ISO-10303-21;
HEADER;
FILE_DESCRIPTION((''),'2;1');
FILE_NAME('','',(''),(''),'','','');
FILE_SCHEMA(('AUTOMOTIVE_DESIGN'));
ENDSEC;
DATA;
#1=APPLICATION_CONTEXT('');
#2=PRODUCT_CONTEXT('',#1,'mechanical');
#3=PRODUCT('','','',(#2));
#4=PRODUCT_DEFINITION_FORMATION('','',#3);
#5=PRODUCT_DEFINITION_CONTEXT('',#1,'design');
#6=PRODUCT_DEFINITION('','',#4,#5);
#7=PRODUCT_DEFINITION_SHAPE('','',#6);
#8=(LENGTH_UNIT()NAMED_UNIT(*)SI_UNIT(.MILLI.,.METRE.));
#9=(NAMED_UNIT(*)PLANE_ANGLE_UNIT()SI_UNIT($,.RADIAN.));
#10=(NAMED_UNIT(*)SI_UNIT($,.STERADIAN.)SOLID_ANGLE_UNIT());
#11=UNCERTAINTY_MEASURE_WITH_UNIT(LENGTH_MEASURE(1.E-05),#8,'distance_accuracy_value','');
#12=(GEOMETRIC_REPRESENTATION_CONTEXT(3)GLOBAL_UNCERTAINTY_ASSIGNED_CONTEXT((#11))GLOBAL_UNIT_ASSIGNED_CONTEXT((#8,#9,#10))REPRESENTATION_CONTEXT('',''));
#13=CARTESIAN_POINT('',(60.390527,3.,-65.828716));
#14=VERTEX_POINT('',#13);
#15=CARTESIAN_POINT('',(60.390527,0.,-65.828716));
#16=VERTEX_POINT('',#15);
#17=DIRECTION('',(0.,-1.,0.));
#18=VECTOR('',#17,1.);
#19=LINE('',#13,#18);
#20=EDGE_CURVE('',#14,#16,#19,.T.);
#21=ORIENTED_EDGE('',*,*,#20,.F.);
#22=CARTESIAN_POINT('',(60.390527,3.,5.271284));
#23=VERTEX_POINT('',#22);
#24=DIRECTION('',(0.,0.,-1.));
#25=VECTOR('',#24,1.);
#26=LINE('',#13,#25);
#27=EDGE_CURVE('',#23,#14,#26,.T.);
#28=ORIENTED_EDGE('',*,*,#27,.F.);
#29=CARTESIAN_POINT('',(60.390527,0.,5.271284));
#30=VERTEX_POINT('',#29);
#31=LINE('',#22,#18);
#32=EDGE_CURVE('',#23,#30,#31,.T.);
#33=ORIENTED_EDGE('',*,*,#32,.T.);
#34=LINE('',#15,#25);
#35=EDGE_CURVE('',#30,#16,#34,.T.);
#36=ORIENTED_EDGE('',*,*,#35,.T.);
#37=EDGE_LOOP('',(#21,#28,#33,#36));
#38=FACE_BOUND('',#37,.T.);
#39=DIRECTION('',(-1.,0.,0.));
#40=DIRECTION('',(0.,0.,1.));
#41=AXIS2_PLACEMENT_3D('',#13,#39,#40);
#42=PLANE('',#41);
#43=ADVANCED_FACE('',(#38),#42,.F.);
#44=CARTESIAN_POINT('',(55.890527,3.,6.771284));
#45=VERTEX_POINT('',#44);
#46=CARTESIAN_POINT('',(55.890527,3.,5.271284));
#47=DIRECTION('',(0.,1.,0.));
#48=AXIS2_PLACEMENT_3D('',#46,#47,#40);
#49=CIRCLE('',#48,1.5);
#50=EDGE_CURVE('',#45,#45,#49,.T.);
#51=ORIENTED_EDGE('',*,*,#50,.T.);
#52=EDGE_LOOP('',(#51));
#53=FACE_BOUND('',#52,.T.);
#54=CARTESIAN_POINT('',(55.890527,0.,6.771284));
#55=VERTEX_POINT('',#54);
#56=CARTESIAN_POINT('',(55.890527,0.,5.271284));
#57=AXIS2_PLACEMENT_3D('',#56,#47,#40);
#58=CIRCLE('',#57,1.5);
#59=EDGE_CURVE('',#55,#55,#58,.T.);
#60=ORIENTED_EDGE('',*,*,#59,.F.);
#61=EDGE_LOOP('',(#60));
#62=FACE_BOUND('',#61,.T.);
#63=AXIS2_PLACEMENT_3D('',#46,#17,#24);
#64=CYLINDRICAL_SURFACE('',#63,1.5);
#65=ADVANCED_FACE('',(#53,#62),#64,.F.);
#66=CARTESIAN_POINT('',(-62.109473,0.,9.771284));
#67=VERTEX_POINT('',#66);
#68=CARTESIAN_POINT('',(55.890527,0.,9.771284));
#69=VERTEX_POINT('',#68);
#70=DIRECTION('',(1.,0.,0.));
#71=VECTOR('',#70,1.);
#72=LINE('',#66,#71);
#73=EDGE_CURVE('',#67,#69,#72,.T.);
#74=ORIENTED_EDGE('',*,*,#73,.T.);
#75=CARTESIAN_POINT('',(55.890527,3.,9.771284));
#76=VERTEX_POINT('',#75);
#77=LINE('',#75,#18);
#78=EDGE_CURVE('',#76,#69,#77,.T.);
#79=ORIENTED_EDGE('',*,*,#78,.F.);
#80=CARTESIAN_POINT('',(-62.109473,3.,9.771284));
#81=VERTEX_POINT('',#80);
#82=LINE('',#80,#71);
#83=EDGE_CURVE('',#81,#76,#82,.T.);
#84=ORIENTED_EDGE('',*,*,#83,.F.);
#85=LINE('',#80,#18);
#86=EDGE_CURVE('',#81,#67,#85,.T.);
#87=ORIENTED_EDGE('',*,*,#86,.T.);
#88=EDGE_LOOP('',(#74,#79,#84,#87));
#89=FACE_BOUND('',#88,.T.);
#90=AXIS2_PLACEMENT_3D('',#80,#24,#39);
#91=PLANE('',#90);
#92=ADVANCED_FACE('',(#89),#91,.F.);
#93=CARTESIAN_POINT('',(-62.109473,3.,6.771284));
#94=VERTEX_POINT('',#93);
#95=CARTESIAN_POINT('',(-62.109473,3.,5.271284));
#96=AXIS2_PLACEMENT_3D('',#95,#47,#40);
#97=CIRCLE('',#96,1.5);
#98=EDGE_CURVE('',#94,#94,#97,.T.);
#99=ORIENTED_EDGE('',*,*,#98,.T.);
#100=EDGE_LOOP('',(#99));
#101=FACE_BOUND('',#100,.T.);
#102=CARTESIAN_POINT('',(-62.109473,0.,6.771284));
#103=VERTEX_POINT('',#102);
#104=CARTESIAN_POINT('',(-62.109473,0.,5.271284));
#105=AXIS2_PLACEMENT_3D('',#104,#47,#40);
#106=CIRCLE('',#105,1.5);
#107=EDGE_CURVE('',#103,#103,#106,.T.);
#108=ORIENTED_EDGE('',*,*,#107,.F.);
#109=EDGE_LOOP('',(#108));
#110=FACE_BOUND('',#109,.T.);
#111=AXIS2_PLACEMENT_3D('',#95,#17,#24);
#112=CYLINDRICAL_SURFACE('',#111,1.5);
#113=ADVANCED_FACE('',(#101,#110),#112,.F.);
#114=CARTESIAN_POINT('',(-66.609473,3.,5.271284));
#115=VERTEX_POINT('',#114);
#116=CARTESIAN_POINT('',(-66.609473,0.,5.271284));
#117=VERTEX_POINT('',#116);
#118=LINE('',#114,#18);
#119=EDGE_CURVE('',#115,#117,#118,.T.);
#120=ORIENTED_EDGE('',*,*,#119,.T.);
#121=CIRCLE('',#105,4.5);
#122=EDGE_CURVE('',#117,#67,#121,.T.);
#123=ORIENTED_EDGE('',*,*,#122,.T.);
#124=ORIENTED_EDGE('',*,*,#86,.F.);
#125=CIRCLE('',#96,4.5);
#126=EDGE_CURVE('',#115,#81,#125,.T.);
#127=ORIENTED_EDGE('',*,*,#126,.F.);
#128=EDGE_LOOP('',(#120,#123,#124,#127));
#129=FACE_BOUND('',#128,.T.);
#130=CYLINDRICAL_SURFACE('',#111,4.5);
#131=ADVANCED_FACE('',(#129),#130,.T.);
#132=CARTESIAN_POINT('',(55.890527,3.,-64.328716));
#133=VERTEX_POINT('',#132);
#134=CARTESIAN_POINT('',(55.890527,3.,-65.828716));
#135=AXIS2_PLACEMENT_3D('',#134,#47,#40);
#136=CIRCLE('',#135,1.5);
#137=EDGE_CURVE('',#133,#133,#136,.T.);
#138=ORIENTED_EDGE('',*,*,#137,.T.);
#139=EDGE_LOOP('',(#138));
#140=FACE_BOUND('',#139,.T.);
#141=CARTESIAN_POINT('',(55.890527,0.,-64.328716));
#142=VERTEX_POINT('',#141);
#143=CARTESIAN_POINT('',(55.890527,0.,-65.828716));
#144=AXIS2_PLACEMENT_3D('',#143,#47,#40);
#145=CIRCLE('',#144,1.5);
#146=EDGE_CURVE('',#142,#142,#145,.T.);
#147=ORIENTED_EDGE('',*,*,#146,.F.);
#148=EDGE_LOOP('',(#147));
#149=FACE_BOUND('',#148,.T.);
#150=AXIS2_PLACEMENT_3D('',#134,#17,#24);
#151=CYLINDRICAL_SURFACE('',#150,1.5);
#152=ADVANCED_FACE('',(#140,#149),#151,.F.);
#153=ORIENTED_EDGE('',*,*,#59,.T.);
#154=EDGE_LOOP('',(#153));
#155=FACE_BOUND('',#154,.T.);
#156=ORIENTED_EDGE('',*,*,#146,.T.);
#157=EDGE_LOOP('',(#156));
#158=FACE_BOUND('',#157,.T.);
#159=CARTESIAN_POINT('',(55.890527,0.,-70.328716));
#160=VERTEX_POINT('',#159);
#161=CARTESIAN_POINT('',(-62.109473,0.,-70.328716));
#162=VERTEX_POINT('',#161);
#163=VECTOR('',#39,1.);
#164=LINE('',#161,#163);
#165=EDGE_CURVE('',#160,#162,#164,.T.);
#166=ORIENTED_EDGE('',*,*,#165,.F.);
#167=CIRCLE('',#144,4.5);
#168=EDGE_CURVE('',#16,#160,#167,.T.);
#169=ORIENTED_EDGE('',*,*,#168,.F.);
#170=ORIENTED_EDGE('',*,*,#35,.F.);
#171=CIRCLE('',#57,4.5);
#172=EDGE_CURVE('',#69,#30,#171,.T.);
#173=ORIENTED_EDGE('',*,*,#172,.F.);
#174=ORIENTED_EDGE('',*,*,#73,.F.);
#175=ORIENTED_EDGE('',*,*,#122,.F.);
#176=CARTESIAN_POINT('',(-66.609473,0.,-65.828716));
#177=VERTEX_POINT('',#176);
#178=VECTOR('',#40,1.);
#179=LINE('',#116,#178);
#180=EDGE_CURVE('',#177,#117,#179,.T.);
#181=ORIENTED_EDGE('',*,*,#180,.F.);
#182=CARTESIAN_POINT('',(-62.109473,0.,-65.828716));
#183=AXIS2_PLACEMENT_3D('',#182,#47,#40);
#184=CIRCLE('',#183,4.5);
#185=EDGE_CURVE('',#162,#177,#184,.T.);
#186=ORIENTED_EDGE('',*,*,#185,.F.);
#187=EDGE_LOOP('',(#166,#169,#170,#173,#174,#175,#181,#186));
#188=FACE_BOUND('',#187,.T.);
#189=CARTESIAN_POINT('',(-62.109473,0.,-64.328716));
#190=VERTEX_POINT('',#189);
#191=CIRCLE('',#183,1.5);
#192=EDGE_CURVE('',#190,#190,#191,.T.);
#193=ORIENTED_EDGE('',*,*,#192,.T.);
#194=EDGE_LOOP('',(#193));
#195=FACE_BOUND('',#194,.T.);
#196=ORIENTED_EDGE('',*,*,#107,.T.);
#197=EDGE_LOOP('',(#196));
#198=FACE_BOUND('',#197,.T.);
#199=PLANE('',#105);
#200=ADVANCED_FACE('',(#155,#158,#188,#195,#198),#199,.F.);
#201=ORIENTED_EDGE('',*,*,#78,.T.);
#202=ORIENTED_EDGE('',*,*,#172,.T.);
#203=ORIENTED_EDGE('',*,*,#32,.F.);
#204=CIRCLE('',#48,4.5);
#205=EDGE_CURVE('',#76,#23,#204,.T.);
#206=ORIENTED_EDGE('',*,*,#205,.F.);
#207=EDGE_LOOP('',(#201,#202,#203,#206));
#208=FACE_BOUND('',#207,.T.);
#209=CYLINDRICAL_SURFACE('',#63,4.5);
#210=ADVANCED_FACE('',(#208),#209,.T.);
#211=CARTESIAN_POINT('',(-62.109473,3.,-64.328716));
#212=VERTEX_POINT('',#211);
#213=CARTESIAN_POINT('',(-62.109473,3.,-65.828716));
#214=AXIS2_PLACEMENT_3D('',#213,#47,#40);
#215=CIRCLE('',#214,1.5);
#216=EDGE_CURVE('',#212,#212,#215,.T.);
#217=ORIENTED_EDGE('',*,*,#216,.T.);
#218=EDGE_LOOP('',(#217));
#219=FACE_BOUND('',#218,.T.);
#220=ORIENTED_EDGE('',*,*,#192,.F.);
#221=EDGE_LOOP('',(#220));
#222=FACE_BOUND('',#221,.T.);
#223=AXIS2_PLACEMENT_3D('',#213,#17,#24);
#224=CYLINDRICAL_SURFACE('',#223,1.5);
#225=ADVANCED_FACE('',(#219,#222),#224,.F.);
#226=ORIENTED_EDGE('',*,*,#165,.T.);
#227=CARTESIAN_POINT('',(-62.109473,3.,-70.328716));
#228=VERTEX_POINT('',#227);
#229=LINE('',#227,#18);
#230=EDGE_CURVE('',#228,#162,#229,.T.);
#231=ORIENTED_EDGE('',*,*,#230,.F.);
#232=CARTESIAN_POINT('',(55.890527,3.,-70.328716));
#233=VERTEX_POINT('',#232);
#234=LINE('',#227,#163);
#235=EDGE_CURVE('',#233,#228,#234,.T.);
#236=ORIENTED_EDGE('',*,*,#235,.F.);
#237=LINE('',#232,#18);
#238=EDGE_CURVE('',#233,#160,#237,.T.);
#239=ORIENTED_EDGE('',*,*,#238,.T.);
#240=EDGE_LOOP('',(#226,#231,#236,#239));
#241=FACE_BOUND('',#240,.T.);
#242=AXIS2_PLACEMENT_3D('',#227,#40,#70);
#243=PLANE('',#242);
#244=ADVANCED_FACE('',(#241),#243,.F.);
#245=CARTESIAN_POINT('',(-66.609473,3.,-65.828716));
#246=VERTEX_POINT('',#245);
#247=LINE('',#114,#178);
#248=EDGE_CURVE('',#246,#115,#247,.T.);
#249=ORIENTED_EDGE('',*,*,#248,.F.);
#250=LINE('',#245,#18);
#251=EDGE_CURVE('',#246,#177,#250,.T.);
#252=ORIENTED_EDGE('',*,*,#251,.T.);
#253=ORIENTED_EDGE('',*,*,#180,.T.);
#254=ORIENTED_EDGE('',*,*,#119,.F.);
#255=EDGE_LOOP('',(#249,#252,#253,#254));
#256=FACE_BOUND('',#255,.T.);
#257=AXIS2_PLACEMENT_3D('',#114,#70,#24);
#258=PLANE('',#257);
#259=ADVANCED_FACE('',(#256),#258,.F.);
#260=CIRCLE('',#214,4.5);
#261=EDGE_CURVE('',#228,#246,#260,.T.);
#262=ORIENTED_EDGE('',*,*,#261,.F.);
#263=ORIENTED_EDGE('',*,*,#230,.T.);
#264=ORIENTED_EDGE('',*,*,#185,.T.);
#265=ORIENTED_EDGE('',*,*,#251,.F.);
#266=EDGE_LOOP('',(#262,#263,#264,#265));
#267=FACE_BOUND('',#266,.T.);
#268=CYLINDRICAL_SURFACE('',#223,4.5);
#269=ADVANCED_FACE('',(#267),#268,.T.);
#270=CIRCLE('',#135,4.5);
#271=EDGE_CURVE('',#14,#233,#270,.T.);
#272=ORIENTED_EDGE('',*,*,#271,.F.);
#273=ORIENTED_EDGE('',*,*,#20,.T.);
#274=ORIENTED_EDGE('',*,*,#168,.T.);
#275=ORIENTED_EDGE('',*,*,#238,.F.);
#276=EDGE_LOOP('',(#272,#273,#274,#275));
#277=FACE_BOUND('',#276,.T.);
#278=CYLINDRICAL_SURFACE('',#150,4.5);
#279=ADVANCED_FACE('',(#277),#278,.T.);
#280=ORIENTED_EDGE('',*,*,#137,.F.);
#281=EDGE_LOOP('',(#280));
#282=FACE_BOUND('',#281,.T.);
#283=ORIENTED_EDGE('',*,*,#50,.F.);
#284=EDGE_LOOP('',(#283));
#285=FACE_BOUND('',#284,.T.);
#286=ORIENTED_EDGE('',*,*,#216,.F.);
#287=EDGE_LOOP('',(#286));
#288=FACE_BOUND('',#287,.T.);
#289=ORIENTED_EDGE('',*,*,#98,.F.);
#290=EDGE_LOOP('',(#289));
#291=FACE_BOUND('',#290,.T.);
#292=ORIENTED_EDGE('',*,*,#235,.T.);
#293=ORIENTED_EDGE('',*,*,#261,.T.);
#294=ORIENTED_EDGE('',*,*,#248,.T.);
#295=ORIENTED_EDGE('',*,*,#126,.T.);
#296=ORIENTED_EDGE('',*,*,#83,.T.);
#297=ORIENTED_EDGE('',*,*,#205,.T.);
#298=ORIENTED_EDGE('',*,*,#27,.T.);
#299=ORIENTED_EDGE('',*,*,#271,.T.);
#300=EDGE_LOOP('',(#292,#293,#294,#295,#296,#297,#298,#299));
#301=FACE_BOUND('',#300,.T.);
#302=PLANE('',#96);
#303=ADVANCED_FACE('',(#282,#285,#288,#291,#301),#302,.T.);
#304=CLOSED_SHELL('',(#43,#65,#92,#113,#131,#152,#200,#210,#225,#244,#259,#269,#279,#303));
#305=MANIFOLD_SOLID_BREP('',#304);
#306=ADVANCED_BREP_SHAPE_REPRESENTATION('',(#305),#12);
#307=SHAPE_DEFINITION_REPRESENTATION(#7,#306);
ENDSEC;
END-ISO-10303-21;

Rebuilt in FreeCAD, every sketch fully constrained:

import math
import FreeCAD as App
import Part
import Sketcher
Q = App.Units.Quantity

doc = App.newDocument("Part")
body = doc.addObject("PartDesign::Body", "Body")

# Sketch on XZ plane
sketch1 = doc.addObject("Sketcher::SketchObject", "Sketch")
body.addObject(sketch1)
sketch1.AttachmentSupport = (doc.XZ_Plane, [""])
sketch1.MapMode = "FlatFace"
sketch1.addGeometry([
    Part.LineSegment(App.Vector(-66.6, -65.8, 0), App.Vector(-66.6, 5.3, 0)),  # 0
    Part.ArcOfCircle(Part.Circle(App.Vector(-62.1, 5.3, 0), App.Vector(0, 0, 1), 4.5), math.radians(90), math.radians(180)),  # 1
    Part.LineSegment(App.Vector(-62.1, 9.8, 0), App.Vector(55.9, 9.8, 0)),  # 2
    Part.ArcOfCircle(Part.Circle(App.Vector(55.9, 5.3, 0), App.Vector(0, 0, 1), 4.5), math.radians(0), math.radians(90)),  # 3
    Part.LineSegment(App.Vector(60.4, 5.3, 0), App.Vector(60.4, -65.8, 0)),  # 4
    Part.ArcOfCircle(Part.Circle(App.Vector(55.9, -65.8, 0), App.Vector(0, 0, 1), 4.5), math.radians(-90), math.radians(0)),  # 5
    Part.LineSegment(App.Vector(55.9, -70.3, 0), App.Vector(-62.1, -70.3, 0)),  # 6
    Part.ArcOfCircle(Part.Circle(App.Vector(-62.1, -65.8, 0), App.Vector(0, 0, 1), 4.5), math.radians(-180), math.radians(-90)),  # 7
    Part.Circle(App.Vector(55.9, 5.3, 0), App.Vector(0, 0, 1), 1.5),  # 8
    Part.Circle(App.Vector(-62.1, 5.3, 0), App.Vector(0, 0, 1), 1.5),  # 9
    Part.Circle(App.Vector(55.9, -65.8, 0), App.Vector(0, 0, 1), 1.5),  # 10
    Part.Circle(App.Vector(-62.1, -65.8, 0), App.Vector(0, 0, 1), 1.5),  # 11
], False)
sketch1.addConstraint([
    Sketcher.Constraint("Tangent", 0, 2, 1, 2),
    Sketcher.Constraint("Tangent", 1, 1, 2, 1),
    Sketcher.Constraint("Tangent", 2, 2, 3, 2),
    Sketcher.Constraint("Tangent", 3, 1, 4, 1),
    Sketcher.Constraint("Tangent", 4, 2, 5, 2),
    Sketcher.Constraint("Tangent", 5, 1, 6, 1),
    Sketcher.Constraint("Tangent", 6, 2, 7, 2),
    Sketcher.Constraint("Tangent", 7, 1, 0, 1),
    Sketcher.Constraint("Vertical", 0),
    Sketcher.Constraint("Horizontal", 2),
    Sketcher.Constraint("Vertical", 4),
    Sketcher.Constraint("Horizontal", 6),
    Sketcher.Constraint("Coincident", 8, 3, 3, 3),
    Sketcher.Constraint("Coincident", 9, 3, 1, 3),
    Sketcher.Constraint("Coincident", 10, 3, 5, 3),
    Sketcher.Constraint("Coincident", 11, 3, 7, 3),
    Sketcher.Constraint("Equal", 1, 3),
    Sketcher.Constraint("Equal", 3, 5),
    Sketcher.Constraint("Equal", 5, 7),
    Sketcher.Constraint("Equal", 8, 9),
    Sketcher.Constraint("Equal", 9, 10),
    Sketcher.Constraint("Equal", 10, 11),
    Sketcher.Constraint("Diameter", 8, Q("3 mm")),
    Sketcher.Constraint("Radius", 1, Q("4.5 mm")),
    Sketcher.Constraint("DistanceX", 2, 1, 2, 2, Q("118 mm")),
    Sketcher.Constraint("DistanceY", 0, 1, 0, 2, Q("71.1 mm")),
    Sketcher.Constraint("DistanceX", 1, 3, -1, 1, Q("62.109473 mm")),
    Sketcher.Constraint("DistanceY", -1, 1, 1, 3, Q("5.271284 mm")),
])
pad1 = doc.addObject("PartDesign::Pad", "Pad")
body.addObject(pad1)
pad1.Profile = sketch1
pad1.Length = 3
pad1.Reversed = True

doc.recompute()
